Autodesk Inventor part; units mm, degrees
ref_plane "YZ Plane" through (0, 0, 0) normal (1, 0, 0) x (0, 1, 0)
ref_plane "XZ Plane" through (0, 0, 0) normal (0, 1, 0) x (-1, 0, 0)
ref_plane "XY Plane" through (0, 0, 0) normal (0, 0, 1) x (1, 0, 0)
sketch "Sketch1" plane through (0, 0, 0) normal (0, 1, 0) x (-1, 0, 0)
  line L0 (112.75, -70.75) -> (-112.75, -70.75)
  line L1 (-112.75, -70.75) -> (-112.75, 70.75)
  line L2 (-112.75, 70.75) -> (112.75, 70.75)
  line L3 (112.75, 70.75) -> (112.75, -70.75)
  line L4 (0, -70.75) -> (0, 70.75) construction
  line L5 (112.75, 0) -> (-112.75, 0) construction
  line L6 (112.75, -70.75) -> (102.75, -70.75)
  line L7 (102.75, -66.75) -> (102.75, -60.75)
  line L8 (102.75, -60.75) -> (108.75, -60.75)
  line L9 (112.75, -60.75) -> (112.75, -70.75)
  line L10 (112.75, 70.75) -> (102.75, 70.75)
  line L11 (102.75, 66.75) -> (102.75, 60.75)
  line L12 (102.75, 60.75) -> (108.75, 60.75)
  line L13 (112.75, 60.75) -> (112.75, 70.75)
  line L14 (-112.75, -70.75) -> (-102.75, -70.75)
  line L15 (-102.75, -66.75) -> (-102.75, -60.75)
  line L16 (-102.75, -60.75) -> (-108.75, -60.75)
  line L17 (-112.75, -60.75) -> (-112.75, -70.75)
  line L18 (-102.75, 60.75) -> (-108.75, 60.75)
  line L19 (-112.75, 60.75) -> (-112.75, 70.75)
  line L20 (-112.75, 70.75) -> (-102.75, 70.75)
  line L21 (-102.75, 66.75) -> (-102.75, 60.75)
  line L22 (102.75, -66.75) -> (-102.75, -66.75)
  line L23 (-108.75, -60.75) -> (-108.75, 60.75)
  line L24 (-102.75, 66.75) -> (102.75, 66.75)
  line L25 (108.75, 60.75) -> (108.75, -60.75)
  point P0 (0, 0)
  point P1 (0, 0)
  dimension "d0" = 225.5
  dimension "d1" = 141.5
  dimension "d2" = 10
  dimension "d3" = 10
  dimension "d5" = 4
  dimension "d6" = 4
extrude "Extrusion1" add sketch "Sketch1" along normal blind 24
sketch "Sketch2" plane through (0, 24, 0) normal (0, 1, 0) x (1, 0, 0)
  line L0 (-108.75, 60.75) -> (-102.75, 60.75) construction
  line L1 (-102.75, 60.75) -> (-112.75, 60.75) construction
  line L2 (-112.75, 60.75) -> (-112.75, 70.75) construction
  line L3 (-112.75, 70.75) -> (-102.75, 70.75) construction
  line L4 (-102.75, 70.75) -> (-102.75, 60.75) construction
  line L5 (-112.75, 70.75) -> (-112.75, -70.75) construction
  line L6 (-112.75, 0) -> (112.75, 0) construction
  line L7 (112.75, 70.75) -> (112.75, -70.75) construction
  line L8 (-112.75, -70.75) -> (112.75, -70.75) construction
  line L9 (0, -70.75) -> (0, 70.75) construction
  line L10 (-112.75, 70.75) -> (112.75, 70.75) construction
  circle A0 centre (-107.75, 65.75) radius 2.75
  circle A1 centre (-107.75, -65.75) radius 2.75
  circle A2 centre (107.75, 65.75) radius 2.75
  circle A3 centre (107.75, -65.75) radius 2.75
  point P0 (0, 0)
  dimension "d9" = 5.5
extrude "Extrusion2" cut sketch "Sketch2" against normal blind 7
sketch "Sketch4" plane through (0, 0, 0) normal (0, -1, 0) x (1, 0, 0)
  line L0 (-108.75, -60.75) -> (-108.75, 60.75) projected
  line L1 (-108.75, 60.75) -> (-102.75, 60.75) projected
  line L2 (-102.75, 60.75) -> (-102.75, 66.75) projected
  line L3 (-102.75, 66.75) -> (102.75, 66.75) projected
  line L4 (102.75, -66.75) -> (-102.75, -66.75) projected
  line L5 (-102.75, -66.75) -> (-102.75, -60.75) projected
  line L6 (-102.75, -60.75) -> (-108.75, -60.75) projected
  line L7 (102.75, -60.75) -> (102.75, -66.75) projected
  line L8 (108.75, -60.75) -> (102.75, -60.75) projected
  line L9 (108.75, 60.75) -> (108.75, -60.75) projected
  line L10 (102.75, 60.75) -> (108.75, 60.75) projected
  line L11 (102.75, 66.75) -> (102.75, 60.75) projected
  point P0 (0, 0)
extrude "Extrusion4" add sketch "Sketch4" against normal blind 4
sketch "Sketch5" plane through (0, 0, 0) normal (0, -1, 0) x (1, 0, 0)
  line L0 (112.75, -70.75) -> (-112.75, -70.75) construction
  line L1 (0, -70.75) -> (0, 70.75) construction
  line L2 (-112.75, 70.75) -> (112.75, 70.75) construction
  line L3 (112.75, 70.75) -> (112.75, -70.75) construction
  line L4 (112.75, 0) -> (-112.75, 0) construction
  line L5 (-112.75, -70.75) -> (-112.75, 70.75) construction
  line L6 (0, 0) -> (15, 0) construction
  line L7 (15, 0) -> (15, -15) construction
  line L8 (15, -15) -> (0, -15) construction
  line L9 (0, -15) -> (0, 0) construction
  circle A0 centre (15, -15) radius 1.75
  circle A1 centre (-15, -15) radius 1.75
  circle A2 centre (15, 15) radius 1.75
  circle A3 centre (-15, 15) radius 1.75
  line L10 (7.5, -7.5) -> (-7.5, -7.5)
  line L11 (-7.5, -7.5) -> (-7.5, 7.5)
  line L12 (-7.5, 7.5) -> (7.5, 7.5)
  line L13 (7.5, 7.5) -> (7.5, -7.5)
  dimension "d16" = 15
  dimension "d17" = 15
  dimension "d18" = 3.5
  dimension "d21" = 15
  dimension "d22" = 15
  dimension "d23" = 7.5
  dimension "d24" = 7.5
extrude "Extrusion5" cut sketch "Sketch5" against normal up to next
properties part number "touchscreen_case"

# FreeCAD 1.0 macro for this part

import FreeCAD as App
import Part
import Sketcher


def add_polygon(sketch, points):
    """Adds a closed chain of lines whose ends are joined by coincident constraints."""
    first, n = sketch.GeometryCount, len(points)
    for a, b in zip(points, points[1:] + points[:1]):
        sketch.addGeometry(Part.LineSegment(App.Vector(*a, 0), App.Vector(*b, 0)), False)
    for i in range(n):
        sketch.addConstraint(Sketcher.Constraint("Coincident", first + i, 2, first + (i + 1) % n, 1))

doc = App.newDocument("Part")
body = doc.addObject("PartDesign::Body", "Body")

# Sketch on XZ plane
sketch1 = doc.addObject("Sketcher::SketchObject", "Sketch")
body.addObject(sketch1)
sketch1.AttachmentSupport = (doc.XZ_Plane, [""])
sketch1.MapMode = "FlatFace"
add_polygon(sketch1, [(112.75, -70.75), (-112.75, -70.75), (-112.75, 70.75), (112.75, 70.75)])  # lines 0-3
add_polygon(sketch1, [(-102.75, -60.75), (-102.75, -66.75), (102.75, -66.75), (102.75, -60.75), (108.75, -60.75), (108.75, 60.75), (102.75, 60.75), (102.75, 66.75), (-102.75, 66.75), (-102.75, 60.75), (-108.75, 60.75), (-108.75, -60.75)])  # lines 4-15
sketch1.addConstraint([
    Sketcher.Constraint("Horizontal", 0),
    Sketcher.Constraint("Vertical", 1),
    Sketcher.Constraint("Horizontal", 2),
    Sketcher.Constraint("Vertical", 3),
    Sketcher.Constraint("Vertical", 4),
    Sketcher.Constraint("Horizontal", 5),
    Sketcher.Constraint("Vertical", 6),
    Sketcher.Constraint("Horizontal", 7),
    Sketcher.Constraint("Vertical", 8),
    Sketcher.Constraint("Horizontal", 9),
    Sketcher.Constraint("Vertical", 10),
    Sketcher.Constraint("Horizontal", 11),
    Sketcher.Constraint("Vertical", 12),
    Sketcher.Constraint("Horizontal", 13),
    Sketcher.Constraint("Vertical", 14),
    Sketcher.Constraint("Horizontal", 15),
    Sketcher.Constraint("Symmetric", 0, 2, 2, 2, -1, 1),
    Sketcher.Constraint("Symmetric", 4, 2, 10, 2, -1, 1),
    Sketcher.Constraint("Symmetric", 6, 2, 12, 2, -1, 1),
    Sketcher.Constraint("Symmetric", 8, 2, 14, 2, -1, 1),
    Sketcher.Constraint("Symmetric", 9, 2, 12, 2, -2),
    Sketcher.Constraint("Equal", 15, 4),
    Sketcher.Constraint("DistanceX", 0, 2, 0, 1, 225.5),
    Sketcher.Constraint("DistanceY", 1, 1, 1, 2, 141.5),
    Sketcher.Constraint("DistanceX", 0, 2, 4, 2, 10.0),
    Sketcher.Constraint("DistanceY", 0, 2, 4, 2, 4.0),
    Sketcher.Constraint("DistanceY", 3, 2, 6, 2, 10.0),
])
pad1 = doc.addObject("PartDesign::Pad", "Pad")
body.addObject(pad1)
pad1.Profile = sketch1
pad1.Length = 24
pad1.Reversed = True

# Sketch on XZ plane
sketch2 = doc.addObject("Sketcher::SketchObject", "Sketch001")
body.addObject(sketch2)
sketch2.AttachmentSupport = (doc.XZ_Plane, [""])
sketch2.MapMode = "FlatFace"
sketch2.AttachmentOffset = App.Placement(App.Vector(0, 0, -24), App.Rotation())
sketch2.addGeometry([
    Part.Circle(App.Vector(-107.75, -65.75, 0), App.Vector(0, 0, 1), 2.75),
    Part.Circle(App.Vector(-107.75, 65.75, 0), App.Vector(0, 0, 1), 2.75),
    Part.Circle(App.Vector(107.75, -65.75, 0), App.Vector(0, 0, 1), 2.75),
    Part.Circle(App.Vector(107.75, 65.75, 0), App.Vector(0, 0, 1), 2.75),
], False)
sketch2.addConstraint([
    Sketcher.Constraint("Equal", 0, 1),
    Sketcher.Constraint("Equal", 1, 2),
    Sketcher.Constraint("Equal", 2, 3),
    Sketcher.Constraint("Symmetric", 1, 3, 2, 3, -1, 1),
    Sketcher.Constraint("Symmetric", 0, 3, 3, 3, -1, 1),
    Sketcher.Constraint("Symmetric", 0, 3, 2, 3, -2),
    Sketcher.Constraint("Diameter", 0, 5.5),
    Sketcher.Constraint("DistanceY", 0, 3, 1, 3, 131.5),
    Sketcher.Constraint("DistanceX", 0, 3, 2, 3, 215.5),
])
pocket1 = doc.addObject("PartDesign::Pocket", "Pocket")
body.addObject(pocket1)
pocket1.Profile = sketch2
pocket1.Length = 7
pocket1.Reversed = True

# Sketch on XZ plane
sketch3 = doc.addObject("Sketcher::SketchObject", "Sketch002")
body.addObject(sketch3)
sketch3.AttachmentSupport = (doc.XZ_Plane, [""])
sketch3.MapMode = "FlatFace"
add_polygon(sketch3, [(-108.75, 60.75), (-108.75, -60.75), (-102.75, -60.75), (-102.75, -66.75), (102.75, -66.75), (102.75, -60.75), (108.75, -60.75), (108.75, 60.75), (102.75, 60.75), (102.75, 66.75), (-102.75, 66.75), (-102.75, 60.75)])  # lines 0-11
sketch3.addConstraint([
    Sketcher.Constraint("Vertical", 0),
    Sketcher.Constraint("Horizontal", 1),
    Sketcher.Constraint("Vertical", 2),
    Sketcher.Constraint("Horizontal", 3),
    Sketcher.Constraint("Vertical", 4),
    Sketcher.Constraint("Horizontal", 5),
    Sketcher.Constraint("Vertical", 6),
    Sketcher.Constraint("Horizontal", 7),
    Sketcher.Constraint("Vertical", 8),
    Sketcher.Constraint("Horizontal", 9),
    Sketcher.Constraint("Vertical", 10),
    Sketcher.Constraint("Horizontal", 11),
    Sketcher.Constraint("Symmetric", 0, 2, 6, 2, -1, 1),
    Sketcher.Constraint("Symmetric", 2, 2, 8, 2, -1, 1),
    Sketcher.Constraint("Symmetric", 4, 2, 10, 2, -1, 1),
    Sketcher.Constraint("Symmetric", 1, 2, 4, 2, -2),
    Sketcher.Constraint("Equal", 11, 2),
    Sketcher.Constraint("DistanceX", 1, 1, 1, 2, 6.0),
    Sketcher.Constraint("DistanceX", 3, 1, 3, 2, 205.5),
    Sketcher.Constraint("DistanceY", 0, 2, 0, 1, 121.5),
])
pad2 = doc.addObject("PartDesign::Pad", "Pad001")
body.addObject(pad2)
pad2.Profile = sketch3
pad2.Length = 4
pad2.Reversed = True

# Sketch on XZ plane
sketch4 = doc.addObject("Sketcher::SketchObject", "Sketch003")
body.addObject(sketch4)
sketch4.AttachmentSupport = (doc.XZ_Plane, [""])
sketch4.MapMode = "FlatFace"
sketch4.addGeometry(Part.Circle(App.Vector(15, -15, 0), App.Vector(0, 0, 1), 1.75), False)  # 0
sketch4.addGeometry(Part.Circle(App.Vector(-15, -15, 0), App.Vector(0, 0, 1), 1.75), False)  # 1
sketch4.addGeometry(Part.Circle(App.Vector(15, 15, 0), App.Vector(0, 0, 1), 1.75), False)  # 2
sketch4.addGeometry(Part.Circle(App.Vector(-15, 15, 0), App.Vector(0, 0, 1), 1.75), False)  # 3
add_polygon(sketch4, [(-7.5, -7.5), (7.5, -7.5), (7.5, 7.5), (-7.5, 7.5)])  # lines 4-7
sketch4.addConstraint([
    Sketcher.Constraint("Horizontal", 4),
    Sketcher.Constraint("Vertical", 5),
    Sketcher.Constraint("Horizontal", 6),
    Sketcher.Constraint("Vertical", 7),
    Sketcher.Constraint("Equal", 0, 1),
    Sketcher.Constraint("Equal", 1, 2),
    Sketcher.Constraint("Equal", 2, 3),
    Sketcher.Constraint("Symmetric", 1, 3, 2, 3, -1, 1),
    Sketcher.Constraint("Symmetric", 0, 3, 3, 3, -1, 1),
    Sketcher.Constraint("Symmetric", 4, 2, 6, 2, -1, 1),
    Sketcher.Constraint("Symmetric", 0, 3, 1, 3, -2),
    Sketcher.Constraint("Equal", 6, 5),
    Sketcher.Constraint("Diameter", 0, 3.5),
    Sketcher.Constraint("DistanceX", 4, 1, 4, 2, 15.0),
    Sketcher.Constraint("DistanceX", -1, 1, 0, 3, 15.0),
    Sketcher.Constraint("DistanceY", 0, 3, -1, 1, 15.0),
])
pocket2 = doc.addObject("PartDesign::Pocket", "Pocket001")
body.addObject(pocket2)
pocket2.Profile = sketch4
pocket2.Type = "UpToFirst"

doc.recompute()
